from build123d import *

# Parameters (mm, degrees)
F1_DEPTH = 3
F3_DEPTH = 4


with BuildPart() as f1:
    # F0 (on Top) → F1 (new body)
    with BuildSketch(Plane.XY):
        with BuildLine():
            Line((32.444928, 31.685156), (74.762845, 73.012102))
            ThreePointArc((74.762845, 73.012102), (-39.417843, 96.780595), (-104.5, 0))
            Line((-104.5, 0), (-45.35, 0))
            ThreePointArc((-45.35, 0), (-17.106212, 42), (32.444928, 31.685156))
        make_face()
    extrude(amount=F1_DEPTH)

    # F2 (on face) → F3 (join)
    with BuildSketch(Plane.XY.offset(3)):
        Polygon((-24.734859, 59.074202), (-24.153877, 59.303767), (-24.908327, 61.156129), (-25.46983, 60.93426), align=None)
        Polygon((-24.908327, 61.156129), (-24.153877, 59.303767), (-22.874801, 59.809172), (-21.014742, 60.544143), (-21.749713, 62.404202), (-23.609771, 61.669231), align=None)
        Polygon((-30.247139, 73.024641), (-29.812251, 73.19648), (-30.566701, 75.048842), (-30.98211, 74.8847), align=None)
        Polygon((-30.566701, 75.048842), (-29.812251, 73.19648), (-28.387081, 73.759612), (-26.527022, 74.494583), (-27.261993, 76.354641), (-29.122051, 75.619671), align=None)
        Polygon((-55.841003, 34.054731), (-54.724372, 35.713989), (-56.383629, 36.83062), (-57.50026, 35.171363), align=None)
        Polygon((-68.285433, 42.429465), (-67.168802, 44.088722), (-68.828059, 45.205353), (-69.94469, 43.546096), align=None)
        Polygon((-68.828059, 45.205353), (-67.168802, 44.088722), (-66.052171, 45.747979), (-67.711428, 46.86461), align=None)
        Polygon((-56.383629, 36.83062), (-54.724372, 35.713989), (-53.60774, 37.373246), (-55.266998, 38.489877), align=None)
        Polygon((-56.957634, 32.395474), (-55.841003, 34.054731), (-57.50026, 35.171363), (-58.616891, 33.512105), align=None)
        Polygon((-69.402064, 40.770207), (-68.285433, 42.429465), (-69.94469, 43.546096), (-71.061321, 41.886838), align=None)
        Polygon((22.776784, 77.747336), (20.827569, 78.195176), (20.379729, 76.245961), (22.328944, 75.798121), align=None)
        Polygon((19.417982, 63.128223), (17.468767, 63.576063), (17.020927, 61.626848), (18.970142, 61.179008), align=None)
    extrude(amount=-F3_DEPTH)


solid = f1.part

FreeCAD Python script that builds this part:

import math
import FreeCAD as App
import Part
import Sketcher
from FreeCAD import Vector
Q = App.Units.Quantity

doc = App.newDocument("Part")
body = doc.addObject("PartDesign::Body", "Body")

# Sketch on XY plane
sketch1 = doc.addObject("Sketcher::SketchObject", "Sketch")
body.addObject(sketch1)
sketch1.AttachmentSupport = (doc.XY_Plane, [""])
sketch1.MapMode = "FlatFace"
sketch1.addGeometry([
    Part.LineSegment(Vector(32, 32, 0), Vector(75, 73, 0)),
    Part.ArcOfCircle(Part.Circle(Vector(0, 0, 0), Vector(0, 0, 1), 105), math.radians(44), math.radians(180)),
    Part.LineSegment(Vector(-104, 0, 0), Vector(-45, 0, 0)),
    Part.ArcOfCircle(Part.Circle(Vector(0, 0, 0), Vector(0, 0, 1), 45), math.radians(44), math.radians(180)),
], False)
sketch1.addConstraint([
    Sketcher.Constraint("Coincident", 0, 2, 1, 1),
    Sketcher.Constraint("Coincident", 1, 2, 2, 1),
    Sketcher.Constraint("Coincident", 2, 2, 3, 2),
    Sketcher.Constraint("Coincident", 3, 1, 0, 1),
    Sketcher.Constraint("Horizontal", 2),
    Sketcher.Constraint("Coincident", 1, 3, -1, 1),
    Sketcher.Constraint("Coincident", 3, 3, -1, 1),
    Sketcher.Constraint("PointOnObject", 1, 2, -1),
    Sketcher.Constraint("Radius", 1, Q("104.5 mm")),
    Sketcher.Constraint("Radius", 3, Q("45.35 mm")),
    Sketcher.Constraint("DistanceY", -1, 1, 0, 2, Q("73.012102 mm")),
    Sketcher.Constraint("DistanceX", -1, 1, 3, 1, Q("32.444928 mm")),
])
pad1 = doc.addObject("PartDesign::Pad", "Pad")
body.addObject(pad1)
pad1.Profile = sketch1
pad1.Length = 3

# Sketch on XY plane
sketch2 = doc.addObject("Sketcher::SketchObject", "Sketch001")
body.addObject(sketch2)
sketch2.AttachmentSupport = (doc.XY_Plane, [""])
sketch2.MapMode = "FlatFace"
sketch2.AttachmentOffset = App.Placement(Vector(0, 0, 3), App.Rotation())
sketch2.addGeometry([
    Part.LineSegment(Vector(-24.73, 59.07, 0), Vector(-24.15, 59.3, 0)),  # 0
    Part.LineSegment(Vector(-24.15, 59.3, 0), Vector(-22.87, 59.81, 0)),  # 1
    Part.LineSegment(Vector(-22.87, 59.81, 0), Vector(-21.01, 60.54, 0)),  # 2
    Part.LineSegment(Vector(-21.01, 60.54, 0), Vector(-21.75, 62.4, 0)),  # 3
    Part.LineSegment(Vector(-21.75, 62.4, 0), Vector(-23.61, 61.67, 0)),  # 4
    Part.LineSegment(Vector(-23.61, 61.67, 0), Vector(-24.91, 61.16, 0)),  # 5
    Part.LineSegment(Vector(-24.91, 61.16, 0), Vector(-25.47, 60.93, 0)),  # 6
    Part.LineSegment(Vector(-25.47, 60.93, 0), Vector(-24.73, 59.07, 0)),  # 7
    Part.LineSegment(Vector(-30.25, 73.02, 0), Vector(-29.81, 73.2, 0)),  # 8
    Part.LineSegment(Vector(-29.81, 73.2, 0), Vector(-28.39, 73.76, 0)),  # 9
    Part.LineSegment(Vector(-28.39, 73.76, 0), Vector(-26.53, 74.49, 0)),  # 10
    Part.LineSegment(Vector(-26.53, 74.49, 0), Vector(-27.26, 76.35, 0)),  # 11
    Part.LineSegment(Vector(-27.26, 76.35, 0), Vector(-29.12, 75.62, 0)),  # 12
    Part.LineSegment(Vector(-29.12, 75.62, 0), Vector(-30.57, 75.05, 0)),  # 13
    Part.LineSegment(Vector(-30.57, 75.05, 0), Vector(-30.98, 74.88, 0)),  # 14
    Part.LineSegment(Vector(-30.98, 74.88, 0), Vector(-30.25, 73.02, 0)),  # 15
    Part.LineSegment(Vector(-55.84, 34.05, 0), Vector(-54.72, 35.71, 0)),  # 16
    Part.LineSegment(Vector(-54.72, 35.71, 0), Vector(-53.61, 37.37, 0)),  # 17
    Part.LineSegment(Vector(-53.61, 37.37, 0), Vector(-55.27, 38.49, 0)),  # 18
    Part.LineSegment(Vector(-55.27, 38.49, 0), Vector(-57.5, 35.17, 0)),  # 19
    Part.LineSegment(Vector(-57.5, 35.17, 0), Vector(-58.62, 33.51, 0)),  # 20
    Part.LineSegment(Vector(-58.62, 33.51, 0), Vector(-56.96, 32.4, 0)),  # 21
    Part.LineSegment(Vector(-56.96, 32.4, 0), Vector(-55.84, 34.05, 0)),  # 22
    Part.LineSegment(Vector(-68.29, 42.43, 0), Vector(-66.05, 45.75, 0)),  # 23
    Part.LineSegment(Vector(-66.05, 45.75, 0), Vector(-67.71, 46.86, 0)),  # 24
    Part.LineSegment(Vector(-67.71, 46.86, 0), Vector(-69.94, 43.55, 0)),  # 25
    Part.LineSegment(Vector(-69.94, 43.55, 0), Vector(-71.06, 41.89, 0)),  # 26
    Part.LineSegment(Vector(-71.06, 41.89, 0), Vector(-69.4, 40.77, 0)),  # 27
    Part.LineSegment(Vector(-69.4, 40.77, 0), Vector(-68.29, 42.43, 0)),  # 28
    Part.LineSegment(Vector(22.78, 77.75, 0), Vector(20.83, 78.2, 0)),  # 29
    Part.LineSegment(Vector(20.83, 78.2, 0), Vector(20.38, 76.25, 0)),  # 30
    Part.LineSegment(Vector(20.38, 76.25, 0), Vector(22.33, 75.8, 0)),  # 31
    Part.LineSegment(Vector(22.33, 75.8, 0), Vector(22.78, 77.75, 0)),  # 32
    Part.LineSegment(Vector(19.42, 63.13, 0), Vector(17.47, 63.58, 0)),  # 33
    Part.LineSegment(Vector(17.47, 63.58, 0), Vector(17.02, 61.63, 0)),  # 34
    Part.LineSegment(Vector(17.02, 61.63, 0), Vector(18.97, 61.18, 0)),  # 35
    Part.LineSegment(Vector(18.97, 61.18, 0), Vector(19.42, 63.13, 0)),  # 36
], False)
sketch2.addConstraint([
    Sketcher.Constraint("Coincident", 0, 2, 1, 1),
    Sketcher.Constraint("Coincident", 1, 2, 2, 1),
    Sketcher.Constraint("Coincident", 2, 2, 3, 1),
    Sketcher.Constraint("Coincident", 3, 2, 4, 1),
    Sketcher.Constraint("Coincident", 4, 2, 5, 1),
    Sketcher.Constraint("Coincident", 5, 2, 6, 1),
    Sketcher.Constraint("Coincident", 6, 2, 7, 1),
    Sketcher.Constraint("Coincident", 7, 2, 0, 1),
    Sketcher.Constraint("Coincident", 8, 2, 9, 1),
    Sketcher.Constraint("Coincident", 9, 2, 10, 1),
    Sketcher.Constraint("Coincident", 10, 2, 11, 1),
    Sketcher.Constraint("Coincident", 11, 2, 12, 1),
    Sketcher.Constraint("Coincident", 12, 2, 13, 1),
    Sketcher.Constraint("Coincident", 13, 2, 14, 1),
    Sketcher.Constraint("Coincident", 14, 2, 15, 1),
    Sketcher.Constraint("Coincident", 15, 2, 8, 1),
    Sketcher.Constraint("Coincident", 16, 2, 17, 1),
    Sketcher.Constraint("Coincident", 17, 2, 18, 1),
    Sketcher.Constraint("Coincident", 18, 2, 19, 1),
    Sketcher.Constraint("Coincident", 19, 2, 20, 1),
    Sketcher.Constraint("Coincident", 20, 2, 21, 1),
    Sketcher.Constraint("Coincident", 21, 2, 22, 1),
    Sketcher.Constraint("Coincident", 22, 2, 16, 1),
    Sketcher.Constraint("Coincident", 23, 2, 24, 1),
    Sketcher.Constraint("Coincident", 24, 2, 25, 1),
    Sketcher.Constraint("Coincident", 25, 2, 26, 1),
    Sketcher.Constraint("Coincident", 26, 2, 27, 1),
    Sketcher.Constraint("Coincident", 27, 2, 28, 1),
    Sketcher.Constraint("Coincident", 28, 2, 23, 1),
    Sketcher.Constraint("Coincident", 29, 2, 30, 1),
    Sketcher.Constraint("Coincident", 30, 2, 31, 1),
    Sketcher.Constraint("Coincident", 31, 2, 32, 1),
    Sketcher.Constraint("Coincident", 32, 2, 29, 1),
    Sketcher.Constraint("Coincident", 33, 2, 34, 1),
    Sketcher.Constraint("Coincident", 34, 2, 35, 1),
    Sketcher.Constraint("Coincident", 35, 2, 36, 1),
    Sketcher.Constraint("Coincident", 36, 2, 33, 1),
    Sketcher.Constraint("Parallel", 0, 1),
    Sketcher.Constraint("Parallel", 1, 2),
    Sketcher.Constraint("Perpendicular", 2, 3),
    Sketcher.Constraint("Perpendicular", 3, 4),
    Sketcher.Constraint("Parallel", 4, 5),
    Sketcher.Constraint("Parallel", 5, 6),
    Sketcher.Constraint("Perpendicular", 6, 7),
    Sketcher.Constraint("Perpendicular", 7, 8),
    Sketcher.Constraint("Parallel", 8, 9),
    Sketcher.Constraint("Parallel", 9, 10),
    Sketcher.Constraint("Perpendicular", 10, 11),
    Sketcher.Constraint("Perpendicular", 11, 12),
    Sketcher.Constraint("Parallel", 12, 13),
    Sketcher.Constraint("Parallel", 13, 14),
    Sketcher.Constraint("Perpendicular", 14, 15),
    Sketcher.Constraint("Parallel", 16, 17),
    Sketcher.Constraint("Perpendicular", 17, 18),
    Sketcher.Constraint("Perpendicular", 18, 19),
    Sketcher.Constraint("Parallel", 19, 20),
    Sketcher.Constraint("Perpendicular", 20, 21),
    Sketcher.Constraint("Perpendicular", 21, 22),
    Sketcher.Constraint("Parallel", 22, 23),
    Sketcher.Constraint("Perpendicular", 23, 24),
    Sketcher.Constraint("Perpendicular", 24, 25),
    Sketcher.Constraint("Parallel", 25, 26),
    Sketcher.Constraint("Perpendicular", 26, 27),
    Sketcher.Constraint("Perpendicular", 27, 28),
    Sketcher.Constraint("Perpendicular", 29, 30),
    Sketcher.Constraint("Perpendicular", 30, 31),
    Sketcher.Constraint("Perpendicular", 31, 32),
    Sketcher.Constraint("Perpendicular", 32, 33),
    Sketcher.Constraint("Perpendicular", 33, 34),
    Sketcher.Constraint("Perpendicular", 34, 35),
    Sketcher.Constraint("Perpendicular", 35, 36),
    Sketcher.Constraint("Equal", 2, 3),
    Sketcher.Constraint("Equal", 3, 4),
    Sketcher.Constraint("Equal", 7, 10),
    Sketcher.Constraint("Equal", 10, 11),
    Sketcher.Constraint("Equal", 11, 12),
    Sketcher.Constraint("Equal", 15, 16),
    Sketcher.Constraint("Equal", 16, 17),
    Sketcher.Constraint("Equal", 17, 18),
    Sketcher.Constraint("Equal", 18, 20),
    Sketcher.Constraint("Equal", 21, 22),
    Sketcher.Constraint("Equal", 19, 23),
    Sketcher.Constraint("Equal", 22, 24),
    Sketcher.Constraint("Equal", 23, 25),
    Sketcher.Constraint("Equal", 24, 26),
    Sketcher.Constraint("Equal", 28, 29),
    Sketcher.Constraint("Equal", 29, 30),
    Sketcher.Constraint("Equal", 32, 33),
    Sketcher.Constraint("Equal", 33, 34),
    Sketcher.Constraint("Distance", 2, Q("2 mm")),
    Sketcher.Constraint("DistanceX", 1, 2, -1, 1, Q("22.874801 mm")),
    Sketcher.Constraint("DistanceY", -1, 1, 3, 2, Q("62.404202 mm")),
    Sketcher.Constraint("DistanceX", 13, 2, -1, 1, Q("30.566701 mm")),
    Sketcher.Constraint("DistanceY", -1, 1, 14, 2, Q("74.8847 mm")),
    Sketcher.Constraint("DistanceX", 8, 2, 12, 2, Q("0.6902 mm")),
    Sketcher.Constraint("DistanceY", 13, 2, 11, 2, Q("1.305799 mm")),
    Sketcher.Constraint("DistanceY", 15, 2, 13, 2, Q("2.024201 mm")),
    Sketcher.Constraint("DistanceX", 19, 2, 7, 2, Q("32.765401 mm")),
    Sketcher.Constraint("DistanceX", 23, 2, 16, 2, Q("11.327799 mm")),
    Sketcher.Constraint("DistanceX", 4, 2, 30, 2, Q("43.9895 mm")),
    Sketcher.Constraint("Distance", 13, Q("1.553338 mm")),
    Sketcher.Constraint("DistanceY", -1, 1, 5, 2, Q("61.156129 mm")),
    Sketcher.Constraint("DistanceX", 6, 2, -1, 1, Q("25.46983 mm")),
    Sketcher.Constraint("DistanceY", -1, 1, 16, 2, Q("35.713989 mm")),
    Sketcher.Constraint("DistanceX", 17, 2, -1, 1, Q("53.60774 mm")),
    Sketcher.Constraint("DistanceY", -1, 1, 23, 2, Q("45.747979 mm")),
    Sketcher.Constraint("DistanceX", -1, 1, 29, 2, Q("20.827569 mm")),
    Sketcher.Constraint("DistanceY", -1, 1, 30, 2, Q("76.245961 mm")),
    Sketcher.Constraint("DistanceY", -1, 1, 34, 2, Q("61.626848 mm")),
    Sketcher.Constraint("DistanceX", -1, 1, 35, 2, Q("18.970142 mm")),
    Sketcher.Constraint("DistanceX", 5, 2, 0, 2, Q("0.75445 mm")),
])
pad2 = doc.addObject("PartDesign::Pad", "Pad001")
body.addObject(pad2)
pad2.Profile = sketch2
pad2.Length = 4
pad2.Reversed = True

doc.recompute()
